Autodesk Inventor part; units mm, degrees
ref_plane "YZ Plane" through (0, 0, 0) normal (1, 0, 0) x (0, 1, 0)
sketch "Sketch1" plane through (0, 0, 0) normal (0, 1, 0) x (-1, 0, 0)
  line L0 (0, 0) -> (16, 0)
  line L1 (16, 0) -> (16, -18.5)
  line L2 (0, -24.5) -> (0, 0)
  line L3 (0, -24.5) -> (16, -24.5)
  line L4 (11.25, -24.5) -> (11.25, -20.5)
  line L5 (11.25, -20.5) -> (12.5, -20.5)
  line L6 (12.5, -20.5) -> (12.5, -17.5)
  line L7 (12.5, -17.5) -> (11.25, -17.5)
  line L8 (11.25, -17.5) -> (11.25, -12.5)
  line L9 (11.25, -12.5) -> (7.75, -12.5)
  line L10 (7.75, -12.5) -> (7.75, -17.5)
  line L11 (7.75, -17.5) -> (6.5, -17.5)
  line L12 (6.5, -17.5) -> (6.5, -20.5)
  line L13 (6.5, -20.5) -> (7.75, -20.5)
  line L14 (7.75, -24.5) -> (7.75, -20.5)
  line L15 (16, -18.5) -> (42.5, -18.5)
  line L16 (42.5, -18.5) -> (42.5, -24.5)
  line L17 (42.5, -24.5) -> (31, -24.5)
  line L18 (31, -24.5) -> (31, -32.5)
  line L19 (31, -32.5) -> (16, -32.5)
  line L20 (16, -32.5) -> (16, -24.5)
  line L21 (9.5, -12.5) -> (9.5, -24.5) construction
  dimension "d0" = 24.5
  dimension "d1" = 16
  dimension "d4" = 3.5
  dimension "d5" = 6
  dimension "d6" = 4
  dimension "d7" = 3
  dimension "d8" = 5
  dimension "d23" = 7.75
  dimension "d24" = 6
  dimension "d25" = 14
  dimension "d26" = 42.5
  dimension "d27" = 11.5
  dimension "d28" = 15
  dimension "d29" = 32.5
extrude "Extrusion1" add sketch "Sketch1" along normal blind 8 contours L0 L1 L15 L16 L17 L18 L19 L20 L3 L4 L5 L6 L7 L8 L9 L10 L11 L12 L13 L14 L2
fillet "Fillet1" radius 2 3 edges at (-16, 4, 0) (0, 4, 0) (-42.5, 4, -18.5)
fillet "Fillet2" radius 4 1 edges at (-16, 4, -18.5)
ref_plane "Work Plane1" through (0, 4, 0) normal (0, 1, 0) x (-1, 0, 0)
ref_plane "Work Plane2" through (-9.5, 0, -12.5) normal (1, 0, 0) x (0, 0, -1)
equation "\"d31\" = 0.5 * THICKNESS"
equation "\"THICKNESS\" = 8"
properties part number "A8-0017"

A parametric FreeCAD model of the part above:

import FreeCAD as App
import Part
import Sketcher

V = App.Vector


def edges_at(feature, points):
    """Names of the edges that pass closest to the given points."""
    edges = feature.Shape.Edges
    near = lambda p: min(range(len(edges)), key=lambda i: edges[i].distToShape(Part.Vertex(*p))[0])
    return sorted({f"Edge{near(p) + 1}" for p in points})

doc = App.newDocument("Part")
body = doc.addObject("PartDesign::Body", "Body")

# Sketch on XZ plane
sketch1 = body.newObject("Sketcher::SketchObject", "Sketch")
sketch1.AttachmentSupport = (doc.getObject("XZ_Plane"), [""])
sketch1.MapMode = "FlatFace"
sketch1.addGeometry([
    Part.LineSegment(V(-16, 0, 0), V(0, 0, 0)),  # 0
    Part.LineSegment(V(0, 0, 0), V(0, -24.5, 0)),  # 1
    Part.LineSegment(V(0, -24.5, 0), V(-7.8, -24.5, 0)),  # 2
    Part.LineSegment(V(-7.8, -24.5, 0), V(-7.8, -20.5, 0)),  # 3
    Part.LineSegment(V(-7.8, -20.5, 0), V(-6.5, -20.5, 0)),  # 4
    Part.LineSegment(V(-6.5, -20.5, 0), V(-6.5, -17.5, 0)),  # 5
    Part.LineSegment(V(-6.5, -17.5, 0), V(-7.8, -17.5, 0)),  # 6
    Part.LineSegment(V(-7.8, -17.5, 0), V(-7.8, -12.5, 0)),  # 7
    Part.LineSegment(V(-7.8, -12.5, 0), V(-11.2, -12.5, 0)),  # 8
    Part.LineSegment(V(-11.2, -12.5, 0), V(-11.2, -17.5, 0)),  # 9
    Part.LineSegment(V(-11.2, -17.5, 0), V(-12.5, -17.5, 0)),  # 10
    Part.LineSegment(V(-12.5, -17.5, 0), V(-12.5, -20.5, 0)),  # 11
    Part.LineSegment(V(-12.5, -20.5, 0), V(-11.2, -20.5, 0)),  # 12
    Part.LineSegment(V(-11.2, -20.5, 0), V(-11.2, -24.5, 0)),  # 13
    Part.LineSegment(V(-11.2, -24.5, 0), V(-16, -24.5, 0)),  # 14
    Part.LineSegment(V(-16, -24.5, 0), V(-16, -32.5, 0)),  # 15
    Part.LineSegment(V(-16, -32.5, 0), V(-31, -32.5, 0)),  # 16
    Part.LineSegment(V(-31, -32.5, 0), V(-31, -24.5, 0)),  # 17
    Part.LineSegment(V(-31, -24.5, 0), V(-42.5, -24.5, 0)),  # 18
    Part.LineSegment(V(-42.5, -24.5, 0), V(-42.5, -18.5, 0)),  # 19
    Part.LineSegment(V(-42.5, -18.5, 0), V(-16, -18.5, 0)),  # 20
    Part.LineSegment(V(-16, -18.5, 0), V(-16, 0, 0)),  # 21
], False)
sketch1.addConstraint([
    Sketcher.Constraint("Coincident", 0, 2, 1, 1),
    Sketcher.Constraint("Coincident", 1, 2, 2, 1),
    Sketcher.Constraint("Coincident", 2, 2, 3, 1),
    Sketcher.Constraint("Coincident", 3, 2, 4, 1),
    Sketcher.Constraint("Coincident", 4, 2, 5, 1),
    Sketcher.Constraint("Coincident", 5, 2, 6, 1),
    Sketcher.Constraint("Coincident", 6, 2, 7, 1),
    Sketcher.Constraint("Coincident", 7, 2, 8, 1),
    Sketcher.Constraint("Coincident", 8, 2, 9, 1),
    Sketcher.Constraint("Coincident", 9, 2, 10, 1),
    Sketcher.Constraint("Coincident", 10, 2, 11, 1),
    Sketcher.Constraint("Coincident", 11, 2, 12, 1),
    Sketcher.Constraint("Coincident", 12, 2, 13, 1),
    Sketcher.Constraint("Coincident", 13, 2, 14, 1),
    Sketcher.Constraint("Coincident", 14, 2, 15, 1),
    Sketcher.Constraint("Coincident", 15, 2, 16, 1),
    Sketcher.Constraint("Coincident", 16, 2, 17, 1),
    Sketcher.Constraint("Coincident", 17, 2, 18, 1),
    Sketcher.Constraint("Coincident", 18, 2, 19, 1),
    Sketcher.Constraint("Coincident", 19, 2, 20, 1),
    Sketcher.Constraint("Coincident", 20, 2, 21, 1),
    Sketcher.Constraint("Coincident", 21, 2, 0, 1),
    Sketcher.Constraint("Horizontal", 0),
    Sketcher.Constraint("Vertical", 1),
    Sketcher.Constraint("Horizontal", 2),
    Sketcher.Constraint("Vertical", 3),
    Sketcher.Constraint("Horizontal", 4),
    Sketcher.Constraint("Vertical", 5),
    Sketcher.Constraint("Horizontal", 6),
    Sketcher.Constraint("Vertical", 7),
    Sketcher.Constraint("Horizontal", 8),
    Sketcher.Constraint("Vertical", 9),
    Sketcher.Constraint("Horizontal", 10),
    Sketcher.Constraint("Vertical", 11),
    Sketcher.Constraint("Horizontal", 12),
    Sketcher.Constraint("Vertical", 13),
    Sketcher.Constraint("Horizontal", 14),
    Sketcher.Constraint("Vertical", 15),
    Sketcher.Constraint("Horizontal", 16),
    Sketcher.Constraint("Vertical", 17),
    Sketcher.Constraint("Horizontal", 18),
    Sketcher.Constraint("Vertical", 19),
    Sketcher.Constraint("Horizontal", 20),
    Sketcher.Constraint("Vertical", 21),
    Sketcher.Constraint("Coincident", 0, 2, -1, 1),
    Sketcher.Constraint("Horizontal", 6, 2, 9, 2),
    Sketcher.Constraint("Horizontal", 4, 2, 11, 2),
    Sketcher.Constraint("Horizontal", 2, 2, 13, 2),
    Sketcher.Constraint("Horizontal", 14, 2, 17, 2),
    Sketcher.Constraint("Vertical", 3, 2, 6, 2),
    Sketcher.Constraint("Vertical", 9, 2, 12, 2),
    Sketcher.Constraint("Vertical", 15, 2, 20, 2),
    Sketcher.Constraint("Equal", 6, 10),
    Sketcher.Constraint("DistanceX", 0, 1, 0, 2, 16.0),
    Sketcher.Constraint("DistanceX", 16, 2, 16, 1, 15.0),
    Sketcher.Constraint("DistanceY", 3, 1, 3, 2, 4.0),
    Sketcher.Constraint("DistanceY", 5, 1, 5, 2, 3.0),
    Sketcher.Constraint("DistanceY", 7, 1, 7, 2, 5.0),
    Sketcher.Constraint("DistanceY", 19, 1, 19, 2, 6.0),
    Sketcher.Constraint("DistanceX", 8, 2, 8, 1, 3.5),
    Sketcher.Constraint("DistanceX", 18, 2, 18, 1, 11.5),
    Sketcher.Constraint("DistanceY", 1, 2, 1, 1, 24.5),
    Sketcher.Constraint("DistanceX", 10, 2, 5, 2, 6.0),
    Sketcher.Constraint("DistanceY", 16, 2, 19, 2, 14.0),
    Sketcher.Constraint("DistanceX", 2, 2, 2, 1, 7.75),
])
pad1 = body.newObject("PartDesign::Pad", "Pad")
pad1.Profile = sketch1
pad1.Length = 8
pad1.Reversed = True
doc.recompute()

fillet = body.newObject("PartDesign::Fillet", "Fillet")
fillet.Base = (pad1, edges_at(pad1, [(-16, 4, 0), (0, 4, 0), (-42.5, 4, -18.5)]))
fillet.Radius = 2
doc.recompute()

fillet2 = body.newObject("PartDesign::Fillet", "Fillet001")
fillet2.Base = (fillet, edges_at(fillet, [(-16, 4, -18.5)]))
fillet2.Radius = 4

doc.recompute()
